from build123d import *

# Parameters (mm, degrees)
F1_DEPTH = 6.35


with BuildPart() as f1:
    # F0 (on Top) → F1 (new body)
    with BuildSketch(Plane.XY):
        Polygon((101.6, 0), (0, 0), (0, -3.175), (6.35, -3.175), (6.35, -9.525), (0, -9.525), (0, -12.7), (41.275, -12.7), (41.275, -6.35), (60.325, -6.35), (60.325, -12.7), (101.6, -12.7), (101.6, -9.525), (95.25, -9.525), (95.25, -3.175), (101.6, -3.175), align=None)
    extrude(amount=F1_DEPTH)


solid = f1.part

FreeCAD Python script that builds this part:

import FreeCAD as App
import Part
import Sketcher

V = App.Vector
Q = App.Units.Quantity


def add_polygon(sketch, points):
    """Adds a closed chain of lines whose ends are joined by coincident constraints."""
    first, n = sketch.GeometryCount, len(points)
    for a, b in zip(points, points[1:] + points[:1]):
        sketch.addGeometry(Part.LineSegment(App.Vector(*a, 0), App.Vector(*b, 0)), False)
    for i in range(n):
        sketch.addConstraint(Sketcher.Constraint("Coincident", first + i, 2, first + (i + 1) % n, 1))

doc = App.newDocument("Part")
body = doc.addObject("PartDesign::Body", "Body")

sketch1 = body.newObject("Sketcher::SketchObject", "Sketch")
sketch1.AttachmentSupport = (doc.getObject("XY_Plane"), [""])
sketch1.MapMode = "FlatFace"
add_polygon(sketch1, [(101.6, 0), (0, 0), (0, -3.2), (6.3, -3.2), (6.3, -9.5), (0, -9.5), (0, -12.7), (41.3, -12.7), (41.3, -6.3), (60.3, -6.3), (60.3, -12.7), (101.6, -12.7), (101.6, -9.5), (95.2, -9.5), (95.2, -3.2), (101.6, -3.2)])
sketch1.addConstraint([
    Sketcher.Constraint("Horizontal", 0),
    Sketcher.Constraint("Vertical", 1),
    Sketcher.Constraint("Horizontal", 2),
    Sketcher.Constraint("Vertical", 3),
    Sketcher.Constraint("Horizontal", 4),
    Sketcher.Constraint("Vertical", 5),
    Sketcher.Constraint("Horizontal", 6),
    Sketcher.Constraint("Vertical", 7),
    Sketcher.Constraint("Horizontal", 8),
    Sketcher.Constraint("Vertical", 9),
    Sketcher.Constraint("Horizontal", 10),
    Sketcher.Constraint("Vertical", 11),
    Sketcher.Constraint("Horizontal", 12),
    Sketcher.Constraint("Vertical", 13),
    Sketcher.Constraint("Horizontal", 14),
    Sketcher.Constraint("Vertical", 15),
    Sketcher.Constraint("Coincident", 0, 2, -1, 1),
    Sketcher.Constraint("PointOnObject", 4, 2, -2),
    Sketcher.Constraint("Horizontal", 6, 2, 9, 2),
    Sketcher.Constraint("Horizontal", 4, 2, 11, 2),
    Sketcher.Constraint("Horizontal", 2, 2, 13, 2),
    Sketcher.Constraint("Vertical", 11, 2, 14, 2),
    Sketcher.Constraint("Equal", 6, 10),
    Sketcher.Constraint("Equal", 4, 12),
    Sketcher.Constraint("Equal", 14, 3),
    Sketcher.Constraint("Equal", 1, 5),
    Sketcher.Constraint("Equal", 3, 7),
    Sketcher.Constraint("DistanceX", 0, 2, 0, 1, Q("4 in")),
    Sketcher.Constraint("DistanceX", 2, 1, 2, 2, Q("0.25 in")),
    Sketcher.Constraint("DistanceX", 8, 1, 8, 2, Q("0.75 in")),
    Sketcher.Constraint("DistanceY", 5, 2, -1, 1, Q("0.5 in")),
])
pad1 = body.newObject("PartDesign::Pad", "Pad")
pad1.Profile = sketch1
pad1.Length = Q("0.25 in")

doc.recompute()
